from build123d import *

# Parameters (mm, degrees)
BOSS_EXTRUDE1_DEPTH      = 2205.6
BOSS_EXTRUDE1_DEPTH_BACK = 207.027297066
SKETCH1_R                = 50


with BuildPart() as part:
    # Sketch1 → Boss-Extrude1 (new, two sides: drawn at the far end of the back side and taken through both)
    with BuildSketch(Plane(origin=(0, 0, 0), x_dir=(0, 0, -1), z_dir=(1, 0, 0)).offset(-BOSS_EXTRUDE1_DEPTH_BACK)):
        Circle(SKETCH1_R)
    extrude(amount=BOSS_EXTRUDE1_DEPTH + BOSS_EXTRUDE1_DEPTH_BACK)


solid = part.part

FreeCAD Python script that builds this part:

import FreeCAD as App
import Part
import Sketcher
Q = App.Units.Quantity

doc = App.newDocument("Part")
body = doc.addObject("PartDesign::Body", "Body")

sketch1 = body.newObject("Sketcher::SketchObject", "Sketch")
sketch1.AttachmentSupport = (doc.getObject("YZ_Plane"), [""])
sketch1.MapMode = "FlatFace"
sketch1.addGeometry(Part.Circle(App.Vector(0, 0, 0), App.Vector(0, 0, 1), 50), False)
sketch1.addConstraint(Sketcher.Constraint("Coincident", 0, 3, -1, 1))
sketch1.addConstraint(Sketcher.Constraint("Diameter", 0, Q("100 mm")))
pad1 = body.newObject("PartDesign::Pad", "Pad")
pad1.Profile = sketch1
pad1.Type = "TwoLengths"
pad1.Length = 2205.6
pad1.Length2 = 207.027297

doc.recompute()
